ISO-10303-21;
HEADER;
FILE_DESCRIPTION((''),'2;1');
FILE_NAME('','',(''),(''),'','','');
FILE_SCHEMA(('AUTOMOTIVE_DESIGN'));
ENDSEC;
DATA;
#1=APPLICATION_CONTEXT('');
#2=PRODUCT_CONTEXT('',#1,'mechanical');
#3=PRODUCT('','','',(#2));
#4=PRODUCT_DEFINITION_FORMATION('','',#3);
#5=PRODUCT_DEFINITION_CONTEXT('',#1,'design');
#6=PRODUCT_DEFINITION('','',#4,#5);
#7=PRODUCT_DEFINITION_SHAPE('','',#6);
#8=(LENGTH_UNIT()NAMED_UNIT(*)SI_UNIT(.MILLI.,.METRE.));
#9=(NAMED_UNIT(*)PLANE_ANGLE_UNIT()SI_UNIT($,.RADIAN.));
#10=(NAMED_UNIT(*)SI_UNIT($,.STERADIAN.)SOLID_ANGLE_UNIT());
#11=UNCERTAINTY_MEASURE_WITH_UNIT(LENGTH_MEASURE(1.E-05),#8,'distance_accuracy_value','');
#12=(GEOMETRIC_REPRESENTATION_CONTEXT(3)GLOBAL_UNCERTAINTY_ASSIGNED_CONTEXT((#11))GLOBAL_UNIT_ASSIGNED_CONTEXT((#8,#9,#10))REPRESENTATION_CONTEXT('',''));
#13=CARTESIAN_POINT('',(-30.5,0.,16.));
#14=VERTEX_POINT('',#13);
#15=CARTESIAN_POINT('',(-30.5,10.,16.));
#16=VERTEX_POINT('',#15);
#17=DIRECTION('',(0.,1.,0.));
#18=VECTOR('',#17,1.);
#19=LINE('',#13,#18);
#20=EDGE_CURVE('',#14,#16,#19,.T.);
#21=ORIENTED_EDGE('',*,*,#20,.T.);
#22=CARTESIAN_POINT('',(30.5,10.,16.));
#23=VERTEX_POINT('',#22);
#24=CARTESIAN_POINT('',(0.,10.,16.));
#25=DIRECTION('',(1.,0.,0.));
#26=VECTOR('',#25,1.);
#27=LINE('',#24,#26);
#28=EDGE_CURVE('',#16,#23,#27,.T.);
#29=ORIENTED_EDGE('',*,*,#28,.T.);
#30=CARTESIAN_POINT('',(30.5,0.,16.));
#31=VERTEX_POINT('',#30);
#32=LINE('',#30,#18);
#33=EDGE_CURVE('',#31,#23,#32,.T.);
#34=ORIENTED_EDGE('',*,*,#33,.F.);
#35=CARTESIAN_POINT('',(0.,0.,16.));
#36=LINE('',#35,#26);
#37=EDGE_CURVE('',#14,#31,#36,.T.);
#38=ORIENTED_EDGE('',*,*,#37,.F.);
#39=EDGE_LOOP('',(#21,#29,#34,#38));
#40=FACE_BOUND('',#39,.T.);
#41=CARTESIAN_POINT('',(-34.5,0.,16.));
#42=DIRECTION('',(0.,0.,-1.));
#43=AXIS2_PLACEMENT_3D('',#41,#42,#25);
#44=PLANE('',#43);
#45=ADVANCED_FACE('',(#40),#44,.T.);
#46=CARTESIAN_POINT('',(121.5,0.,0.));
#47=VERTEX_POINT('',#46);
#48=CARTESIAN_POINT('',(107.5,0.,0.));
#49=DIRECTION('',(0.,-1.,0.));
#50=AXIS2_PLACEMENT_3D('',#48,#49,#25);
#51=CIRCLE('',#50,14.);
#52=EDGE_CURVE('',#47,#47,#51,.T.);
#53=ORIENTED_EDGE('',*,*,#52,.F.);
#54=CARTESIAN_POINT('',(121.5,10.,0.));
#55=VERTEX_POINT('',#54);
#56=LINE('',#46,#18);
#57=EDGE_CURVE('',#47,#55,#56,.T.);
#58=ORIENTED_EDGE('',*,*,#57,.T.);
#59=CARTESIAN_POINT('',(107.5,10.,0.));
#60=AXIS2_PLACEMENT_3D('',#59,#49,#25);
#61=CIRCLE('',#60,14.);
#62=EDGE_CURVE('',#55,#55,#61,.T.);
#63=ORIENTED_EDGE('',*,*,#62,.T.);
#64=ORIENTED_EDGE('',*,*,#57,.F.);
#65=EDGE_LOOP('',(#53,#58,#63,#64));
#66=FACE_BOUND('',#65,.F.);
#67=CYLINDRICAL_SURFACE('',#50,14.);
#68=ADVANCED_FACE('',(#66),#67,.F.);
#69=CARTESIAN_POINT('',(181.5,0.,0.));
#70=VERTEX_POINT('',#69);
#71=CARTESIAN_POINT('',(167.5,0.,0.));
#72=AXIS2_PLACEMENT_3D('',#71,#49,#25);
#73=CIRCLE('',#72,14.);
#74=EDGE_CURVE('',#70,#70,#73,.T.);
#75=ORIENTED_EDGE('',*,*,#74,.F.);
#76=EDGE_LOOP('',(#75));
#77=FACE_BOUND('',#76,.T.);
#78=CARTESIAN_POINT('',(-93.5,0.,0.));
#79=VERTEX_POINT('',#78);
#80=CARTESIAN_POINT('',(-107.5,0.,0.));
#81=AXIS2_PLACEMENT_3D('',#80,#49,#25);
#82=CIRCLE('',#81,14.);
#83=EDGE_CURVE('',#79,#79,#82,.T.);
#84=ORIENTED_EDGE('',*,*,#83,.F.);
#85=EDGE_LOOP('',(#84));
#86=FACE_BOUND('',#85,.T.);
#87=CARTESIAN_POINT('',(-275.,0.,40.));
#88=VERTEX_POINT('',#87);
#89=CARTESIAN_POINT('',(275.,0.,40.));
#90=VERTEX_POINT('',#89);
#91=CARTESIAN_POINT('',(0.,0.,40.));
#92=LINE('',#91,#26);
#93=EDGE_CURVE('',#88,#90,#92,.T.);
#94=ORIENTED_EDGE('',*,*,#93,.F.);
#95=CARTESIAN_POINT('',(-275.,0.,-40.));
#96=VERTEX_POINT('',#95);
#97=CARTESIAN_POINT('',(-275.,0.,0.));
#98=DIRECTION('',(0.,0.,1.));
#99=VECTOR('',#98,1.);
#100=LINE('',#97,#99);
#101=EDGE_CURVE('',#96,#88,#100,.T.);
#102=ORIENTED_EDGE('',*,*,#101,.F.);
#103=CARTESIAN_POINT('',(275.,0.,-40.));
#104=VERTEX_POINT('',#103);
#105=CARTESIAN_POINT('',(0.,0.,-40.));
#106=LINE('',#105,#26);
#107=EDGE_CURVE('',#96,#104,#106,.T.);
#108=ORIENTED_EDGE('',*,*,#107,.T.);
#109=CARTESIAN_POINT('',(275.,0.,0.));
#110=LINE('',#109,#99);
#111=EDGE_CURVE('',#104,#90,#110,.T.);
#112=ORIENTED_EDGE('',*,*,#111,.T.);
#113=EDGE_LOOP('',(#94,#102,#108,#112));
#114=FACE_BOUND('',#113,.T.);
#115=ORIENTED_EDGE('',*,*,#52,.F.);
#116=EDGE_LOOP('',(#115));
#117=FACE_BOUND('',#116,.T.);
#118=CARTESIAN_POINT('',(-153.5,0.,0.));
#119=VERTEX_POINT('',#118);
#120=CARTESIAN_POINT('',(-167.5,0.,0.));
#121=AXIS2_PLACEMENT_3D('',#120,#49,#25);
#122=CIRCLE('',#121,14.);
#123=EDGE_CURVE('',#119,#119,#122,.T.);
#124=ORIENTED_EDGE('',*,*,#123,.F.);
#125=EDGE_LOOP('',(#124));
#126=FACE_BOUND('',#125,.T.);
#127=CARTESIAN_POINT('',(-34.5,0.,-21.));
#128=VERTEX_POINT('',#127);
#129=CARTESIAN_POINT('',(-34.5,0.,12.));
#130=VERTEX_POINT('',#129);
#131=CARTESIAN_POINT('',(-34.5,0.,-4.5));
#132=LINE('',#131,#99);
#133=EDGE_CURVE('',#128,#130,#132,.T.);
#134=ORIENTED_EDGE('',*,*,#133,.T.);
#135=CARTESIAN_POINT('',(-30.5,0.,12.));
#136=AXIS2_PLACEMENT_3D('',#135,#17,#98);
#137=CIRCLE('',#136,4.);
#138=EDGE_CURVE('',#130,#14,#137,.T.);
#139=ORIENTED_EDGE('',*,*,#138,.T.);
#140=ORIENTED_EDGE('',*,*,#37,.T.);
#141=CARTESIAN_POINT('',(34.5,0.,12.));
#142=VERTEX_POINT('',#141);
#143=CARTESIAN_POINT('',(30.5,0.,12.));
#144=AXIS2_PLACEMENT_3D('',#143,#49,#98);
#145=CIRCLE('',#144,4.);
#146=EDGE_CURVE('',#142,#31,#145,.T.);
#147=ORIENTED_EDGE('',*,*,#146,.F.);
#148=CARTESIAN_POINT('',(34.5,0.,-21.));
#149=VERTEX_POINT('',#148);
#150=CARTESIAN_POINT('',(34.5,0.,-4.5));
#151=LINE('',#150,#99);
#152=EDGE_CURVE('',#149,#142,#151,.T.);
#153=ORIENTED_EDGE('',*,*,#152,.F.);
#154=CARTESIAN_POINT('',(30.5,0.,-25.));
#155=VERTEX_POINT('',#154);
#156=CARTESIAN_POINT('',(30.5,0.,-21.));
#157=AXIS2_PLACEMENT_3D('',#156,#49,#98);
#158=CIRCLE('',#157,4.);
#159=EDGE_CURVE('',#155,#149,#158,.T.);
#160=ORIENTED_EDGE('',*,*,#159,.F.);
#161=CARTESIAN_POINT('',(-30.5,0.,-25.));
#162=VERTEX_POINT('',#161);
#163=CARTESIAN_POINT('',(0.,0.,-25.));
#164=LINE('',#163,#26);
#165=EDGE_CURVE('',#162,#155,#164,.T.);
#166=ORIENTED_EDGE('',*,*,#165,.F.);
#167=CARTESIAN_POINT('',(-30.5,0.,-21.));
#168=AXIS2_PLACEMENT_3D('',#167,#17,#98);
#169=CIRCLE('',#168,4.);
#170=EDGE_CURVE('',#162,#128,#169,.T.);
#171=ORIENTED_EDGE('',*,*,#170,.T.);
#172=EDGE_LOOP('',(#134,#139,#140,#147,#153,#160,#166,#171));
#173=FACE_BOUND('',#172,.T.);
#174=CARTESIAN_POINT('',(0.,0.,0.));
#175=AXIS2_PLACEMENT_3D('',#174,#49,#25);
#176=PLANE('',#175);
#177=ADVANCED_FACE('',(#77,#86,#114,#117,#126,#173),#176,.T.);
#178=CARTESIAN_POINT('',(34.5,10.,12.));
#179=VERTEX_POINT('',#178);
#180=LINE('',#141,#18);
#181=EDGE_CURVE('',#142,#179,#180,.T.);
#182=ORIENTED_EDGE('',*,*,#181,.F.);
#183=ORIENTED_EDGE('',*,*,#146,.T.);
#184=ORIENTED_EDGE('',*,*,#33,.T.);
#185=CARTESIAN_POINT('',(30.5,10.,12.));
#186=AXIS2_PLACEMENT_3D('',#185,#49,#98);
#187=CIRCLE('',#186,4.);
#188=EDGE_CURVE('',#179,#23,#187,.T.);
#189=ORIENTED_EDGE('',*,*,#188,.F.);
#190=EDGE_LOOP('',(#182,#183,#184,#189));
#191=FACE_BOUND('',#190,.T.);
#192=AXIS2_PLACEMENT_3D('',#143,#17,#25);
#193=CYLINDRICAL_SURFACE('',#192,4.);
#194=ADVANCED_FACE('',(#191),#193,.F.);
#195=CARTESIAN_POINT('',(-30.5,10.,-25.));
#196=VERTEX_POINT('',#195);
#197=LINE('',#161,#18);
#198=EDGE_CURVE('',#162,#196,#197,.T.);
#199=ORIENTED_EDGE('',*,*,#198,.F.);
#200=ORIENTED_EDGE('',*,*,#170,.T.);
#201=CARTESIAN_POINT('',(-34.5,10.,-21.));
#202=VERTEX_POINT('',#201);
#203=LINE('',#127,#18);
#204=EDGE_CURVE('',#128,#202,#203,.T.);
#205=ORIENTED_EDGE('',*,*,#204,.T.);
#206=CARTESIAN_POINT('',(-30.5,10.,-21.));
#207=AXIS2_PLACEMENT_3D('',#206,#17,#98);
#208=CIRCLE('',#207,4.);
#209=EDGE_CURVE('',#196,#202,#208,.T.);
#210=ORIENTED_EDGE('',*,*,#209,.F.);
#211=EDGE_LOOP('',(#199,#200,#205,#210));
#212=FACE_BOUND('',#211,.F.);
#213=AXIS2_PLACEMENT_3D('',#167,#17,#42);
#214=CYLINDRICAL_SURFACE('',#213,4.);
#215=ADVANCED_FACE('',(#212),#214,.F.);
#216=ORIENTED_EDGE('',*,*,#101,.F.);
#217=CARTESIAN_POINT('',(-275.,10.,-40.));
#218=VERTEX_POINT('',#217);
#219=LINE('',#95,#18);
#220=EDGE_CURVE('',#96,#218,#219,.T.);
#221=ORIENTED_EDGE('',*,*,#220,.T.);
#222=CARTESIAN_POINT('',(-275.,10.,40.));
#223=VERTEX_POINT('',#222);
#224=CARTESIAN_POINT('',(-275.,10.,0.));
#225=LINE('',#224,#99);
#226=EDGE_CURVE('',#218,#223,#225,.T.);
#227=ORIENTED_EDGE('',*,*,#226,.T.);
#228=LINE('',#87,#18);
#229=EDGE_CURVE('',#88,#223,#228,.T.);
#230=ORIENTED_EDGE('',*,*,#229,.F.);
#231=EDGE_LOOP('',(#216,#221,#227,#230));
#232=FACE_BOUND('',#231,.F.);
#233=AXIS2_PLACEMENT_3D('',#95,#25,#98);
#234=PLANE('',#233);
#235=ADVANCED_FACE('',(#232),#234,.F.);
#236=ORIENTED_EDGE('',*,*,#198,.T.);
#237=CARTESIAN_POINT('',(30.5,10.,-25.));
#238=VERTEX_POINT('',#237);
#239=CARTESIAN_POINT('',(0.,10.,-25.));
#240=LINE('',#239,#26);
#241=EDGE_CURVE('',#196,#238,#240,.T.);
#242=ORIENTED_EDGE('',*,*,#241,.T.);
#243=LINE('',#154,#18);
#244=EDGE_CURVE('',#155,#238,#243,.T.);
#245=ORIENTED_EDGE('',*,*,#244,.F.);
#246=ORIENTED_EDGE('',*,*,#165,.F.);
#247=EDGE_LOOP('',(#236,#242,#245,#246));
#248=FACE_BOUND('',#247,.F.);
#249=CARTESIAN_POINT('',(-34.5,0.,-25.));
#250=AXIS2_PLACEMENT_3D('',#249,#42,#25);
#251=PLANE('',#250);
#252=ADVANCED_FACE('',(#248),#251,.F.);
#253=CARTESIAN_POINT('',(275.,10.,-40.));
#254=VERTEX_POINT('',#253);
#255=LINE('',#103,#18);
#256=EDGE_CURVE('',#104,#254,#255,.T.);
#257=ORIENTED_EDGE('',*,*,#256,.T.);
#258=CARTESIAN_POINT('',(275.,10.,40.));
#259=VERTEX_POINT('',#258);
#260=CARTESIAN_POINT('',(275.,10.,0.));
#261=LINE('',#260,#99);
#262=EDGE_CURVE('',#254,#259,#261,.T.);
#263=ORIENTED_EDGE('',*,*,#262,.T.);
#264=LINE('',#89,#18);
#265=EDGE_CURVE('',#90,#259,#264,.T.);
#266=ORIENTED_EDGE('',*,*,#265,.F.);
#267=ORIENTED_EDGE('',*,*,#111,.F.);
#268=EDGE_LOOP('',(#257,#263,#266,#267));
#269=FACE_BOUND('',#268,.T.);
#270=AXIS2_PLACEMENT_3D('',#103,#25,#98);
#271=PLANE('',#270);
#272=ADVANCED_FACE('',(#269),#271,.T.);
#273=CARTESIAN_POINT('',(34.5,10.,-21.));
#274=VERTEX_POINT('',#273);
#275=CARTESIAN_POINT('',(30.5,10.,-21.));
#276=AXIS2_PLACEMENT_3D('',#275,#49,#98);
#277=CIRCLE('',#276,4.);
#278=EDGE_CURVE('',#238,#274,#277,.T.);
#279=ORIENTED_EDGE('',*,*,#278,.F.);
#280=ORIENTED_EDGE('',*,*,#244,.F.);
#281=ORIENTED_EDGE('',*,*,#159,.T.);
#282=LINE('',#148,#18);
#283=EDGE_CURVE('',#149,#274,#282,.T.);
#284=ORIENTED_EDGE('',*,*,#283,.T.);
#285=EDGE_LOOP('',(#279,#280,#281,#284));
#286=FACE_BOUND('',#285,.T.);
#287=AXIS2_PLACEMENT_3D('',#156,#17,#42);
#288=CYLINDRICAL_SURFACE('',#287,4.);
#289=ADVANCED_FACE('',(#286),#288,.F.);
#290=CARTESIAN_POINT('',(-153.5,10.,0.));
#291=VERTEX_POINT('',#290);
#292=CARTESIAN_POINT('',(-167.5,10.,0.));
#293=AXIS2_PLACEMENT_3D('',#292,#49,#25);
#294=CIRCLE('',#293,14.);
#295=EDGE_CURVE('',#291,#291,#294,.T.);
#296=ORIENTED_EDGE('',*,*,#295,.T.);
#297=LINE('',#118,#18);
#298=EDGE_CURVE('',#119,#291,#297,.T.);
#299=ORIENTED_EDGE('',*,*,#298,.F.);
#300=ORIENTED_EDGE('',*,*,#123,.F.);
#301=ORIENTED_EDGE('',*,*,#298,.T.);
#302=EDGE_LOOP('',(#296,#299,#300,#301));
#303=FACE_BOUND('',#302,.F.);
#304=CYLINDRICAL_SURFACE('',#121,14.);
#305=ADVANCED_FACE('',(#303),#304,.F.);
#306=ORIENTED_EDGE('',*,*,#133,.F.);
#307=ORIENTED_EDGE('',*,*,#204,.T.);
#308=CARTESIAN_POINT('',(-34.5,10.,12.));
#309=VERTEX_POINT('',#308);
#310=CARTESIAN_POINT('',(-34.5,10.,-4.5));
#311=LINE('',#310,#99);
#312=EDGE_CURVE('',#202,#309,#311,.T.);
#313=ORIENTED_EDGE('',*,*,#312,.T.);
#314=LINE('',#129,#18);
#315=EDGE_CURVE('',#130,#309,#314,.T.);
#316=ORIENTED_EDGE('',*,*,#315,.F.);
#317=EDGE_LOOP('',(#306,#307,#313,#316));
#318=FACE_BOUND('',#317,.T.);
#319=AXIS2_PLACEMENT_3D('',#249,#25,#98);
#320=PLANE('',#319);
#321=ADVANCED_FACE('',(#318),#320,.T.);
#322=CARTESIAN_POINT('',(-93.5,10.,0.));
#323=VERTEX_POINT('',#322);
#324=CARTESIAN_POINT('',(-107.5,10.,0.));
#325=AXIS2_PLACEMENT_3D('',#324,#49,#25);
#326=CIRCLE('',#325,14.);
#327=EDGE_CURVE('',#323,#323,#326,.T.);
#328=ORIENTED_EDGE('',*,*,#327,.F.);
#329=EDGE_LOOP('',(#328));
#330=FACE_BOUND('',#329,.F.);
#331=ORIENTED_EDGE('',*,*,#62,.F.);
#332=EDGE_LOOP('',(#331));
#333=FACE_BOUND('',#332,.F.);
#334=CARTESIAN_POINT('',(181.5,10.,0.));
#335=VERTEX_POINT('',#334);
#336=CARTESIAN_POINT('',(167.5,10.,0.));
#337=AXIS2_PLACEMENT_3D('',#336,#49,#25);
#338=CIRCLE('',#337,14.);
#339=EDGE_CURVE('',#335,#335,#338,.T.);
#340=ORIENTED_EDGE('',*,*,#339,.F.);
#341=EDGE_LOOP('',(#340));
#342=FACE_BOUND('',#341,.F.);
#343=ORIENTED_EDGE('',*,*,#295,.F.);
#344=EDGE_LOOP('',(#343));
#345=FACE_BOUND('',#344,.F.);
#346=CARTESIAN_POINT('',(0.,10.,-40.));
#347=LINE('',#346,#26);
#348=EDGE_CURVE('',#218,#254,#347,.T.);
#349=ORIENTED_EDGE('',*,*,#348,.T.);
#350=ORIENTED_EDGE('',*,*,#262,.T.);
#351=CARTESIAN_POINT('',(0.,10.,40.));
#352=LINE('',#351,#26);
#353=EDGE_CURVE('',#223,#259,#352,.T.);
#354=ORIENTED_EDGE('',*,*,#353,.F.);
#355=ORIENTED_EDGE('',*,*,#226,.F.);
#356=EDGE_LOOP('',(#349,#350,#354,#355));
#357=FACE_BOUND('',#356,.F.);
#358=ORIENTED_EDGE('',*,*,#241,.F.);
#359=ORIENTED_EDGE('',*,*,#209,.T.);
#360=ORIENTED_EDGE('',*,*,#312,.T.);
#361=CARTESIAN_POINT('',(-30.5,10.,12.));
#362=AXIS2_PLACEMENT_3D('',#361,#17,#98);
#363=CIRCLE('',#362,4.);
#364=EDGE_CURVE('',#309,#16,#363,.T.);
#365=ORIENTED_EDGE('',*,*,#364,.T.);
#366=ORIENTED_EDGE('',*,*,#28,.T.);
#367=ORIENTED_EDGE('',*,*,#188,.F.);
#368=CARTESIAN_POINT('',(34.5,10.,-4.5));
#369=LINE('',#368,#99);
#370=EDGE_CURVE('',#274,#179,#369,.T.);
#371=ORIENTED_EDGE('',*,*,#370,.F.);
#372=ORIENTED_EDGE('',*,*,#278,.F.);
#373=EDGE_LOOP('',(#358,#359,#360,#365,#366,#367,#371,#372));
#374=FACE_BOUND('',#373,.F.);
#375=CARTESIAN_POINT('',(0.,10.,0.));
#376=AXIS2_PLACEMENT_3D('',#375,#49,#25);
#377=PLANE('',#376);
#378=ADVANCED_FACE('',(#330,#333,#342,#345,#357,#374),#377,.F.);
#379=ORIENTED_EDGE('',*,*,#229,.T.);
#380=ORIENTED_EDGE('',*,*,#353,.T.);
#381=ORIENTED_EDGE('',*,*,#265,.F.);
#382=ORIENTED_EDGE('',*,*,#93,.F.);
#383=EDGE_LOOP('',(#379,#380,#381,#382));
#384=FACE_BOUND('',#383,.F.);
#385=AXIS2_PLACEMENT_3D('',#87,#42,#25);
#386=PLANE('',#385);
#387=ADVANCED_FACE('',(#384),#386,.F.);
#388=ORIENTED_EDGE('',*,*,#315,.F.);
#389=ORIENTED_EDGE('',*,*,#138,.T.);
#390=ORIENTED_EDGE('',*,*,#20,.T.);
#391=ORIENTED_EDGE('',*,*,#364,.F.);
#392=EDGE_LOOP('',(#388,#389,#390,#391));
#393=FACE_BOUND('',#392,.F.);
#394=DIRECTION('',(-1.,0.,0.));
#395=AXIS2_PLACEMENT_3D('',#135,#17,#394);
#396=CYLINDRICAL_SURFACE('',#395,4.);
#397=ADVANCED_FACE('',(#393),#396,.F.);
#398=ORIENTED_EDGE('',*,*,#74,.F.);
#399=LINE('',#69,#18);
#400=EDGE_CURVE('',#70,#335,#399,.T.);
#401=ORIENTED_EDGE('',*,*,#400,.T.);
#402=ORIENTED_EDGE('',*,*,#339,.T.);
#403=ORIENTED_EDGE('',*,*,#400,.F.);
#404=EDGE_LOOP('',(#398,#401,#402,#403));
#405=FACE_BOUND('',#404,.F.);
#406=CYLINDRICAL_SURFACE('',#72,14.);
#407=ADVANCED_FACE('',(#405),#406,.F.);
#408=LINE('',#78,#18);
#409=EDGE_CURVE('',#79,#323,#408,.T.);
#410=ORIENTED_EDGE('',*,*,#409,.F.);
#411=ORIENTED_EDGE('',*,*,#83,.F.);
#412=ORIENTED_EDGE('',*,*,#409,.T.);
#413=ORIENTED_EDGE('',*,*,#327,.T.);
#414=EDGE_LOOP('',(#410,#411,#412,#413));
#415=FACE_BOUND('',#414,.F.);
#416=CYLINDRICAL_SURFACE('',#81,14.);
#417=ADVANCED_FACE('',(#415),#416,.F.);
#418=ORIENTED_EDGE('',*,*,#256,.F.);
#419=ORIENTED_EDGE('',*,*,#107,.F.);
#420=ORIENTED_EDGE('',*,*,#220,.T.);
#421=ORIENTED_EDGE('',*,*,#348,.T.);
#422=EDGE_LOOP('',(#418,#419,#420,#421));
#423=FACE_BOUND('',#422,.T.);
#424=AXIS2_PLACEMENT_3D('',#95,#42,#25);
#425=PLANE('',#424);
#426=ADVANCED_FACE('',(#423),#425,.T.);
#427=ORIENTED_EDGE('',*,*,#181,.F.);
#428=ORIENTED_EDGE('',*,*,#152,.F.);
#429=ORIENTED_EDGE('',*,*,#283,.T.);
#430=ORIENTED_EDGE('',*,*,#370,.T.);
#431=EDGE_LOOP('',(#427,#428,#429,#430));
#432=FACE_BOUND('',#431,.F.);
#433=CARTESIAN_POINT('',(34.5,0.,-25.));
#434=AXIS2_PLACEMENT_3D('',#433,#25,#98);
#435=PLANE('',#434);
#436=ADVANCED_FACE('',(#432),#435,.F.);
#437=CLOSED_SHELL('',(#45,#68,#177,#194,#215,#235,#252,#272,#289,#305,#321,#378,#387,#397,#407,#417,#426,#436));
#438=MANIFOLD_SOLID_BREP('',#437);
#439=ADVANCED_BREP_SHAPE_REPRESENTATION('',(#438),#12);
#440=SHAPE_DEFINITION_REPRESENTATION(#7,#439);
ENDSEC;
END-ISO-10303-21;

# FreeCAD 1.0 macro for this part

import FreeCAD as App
import Part
import Sketcher


def edges_at(feature, points):
    """Names of the edges that pass closest to the given points."""
    edges = feature.Shape.Edges
    near = lambda p: min(range(len(edges)), key=lambda i: edges[i].distToShape(Part.Vertex(*p))[0])
    return sorted({f"Edge{near(p) + 1}" for p in points})

doc = App.newDocument("Part")
body = doc.addObject("PartDesign::Body", "Body")

# Sketch on XZ plane
sketch1 = doc.addObject("Sketcher::SketchObject", "Sketch")
body.addObject(sketch1)
sketch1.AttachmentSupport = (doc.XZ_Plane, [""])
sketch1.MapMode = "FlatFace"
sketch1.addGeometry([
    Part.LineSegment(App.Vector(-275, 40, 0), App.Vector(-275, -40, 0)),  # 0
    Part.LineSegment(App.Vector(-275, -40, 0), App.Vector(275, -40, 0)),  # 1
    Part.LineSegment(App.Vector(275, -40, 0), App.Vector(275, 40, 0)),  # 2
    Part.LineSegment(App.Vector(275, 40, 0), App.Vector(-275, 40, 0)),  # 3
    Part.Circle(App.Vector(-168, 0, 0), App.Vector(0, 0, 1), 14),  # 4
    Part.Circle(App.Vector(-108, 0, 0), App.Vector(0, 0, 1), 14),  # 5
    Part.LineSegment(App.Vector(34, -25, 0), App.Vector(-34, -25, 0)),  # 6
    Part.LineSegment(App.Vector(-34, -25, 0), App.Vector(-34, 16, 0)),  # 7
    Part.LineSegment(App.Vector(-34, 16, 0), App.Vector(34, 16, 0)),  # 8
    Part.LineSegment(App.Vector(34, 16, 0), App.Vector(34, -25, 0)),  # 9
    Part.Circle(App.Vector(108, 0, 0), App.Vector(0, 0, 1), 14),  # 10
    Part.Circle(App.Vector(168, 0, 0), App.Vector(0, 0, 1), 14),  # 11
], False)
sketch1.addConstraint([
    Sketcher.Constraint("Coincident", 0, 2, 1, 1),
    Sketcher.Constraint("Coincident", 1, 2, 2, 1),
    Sketcher.Constraint("Coincident", 2, 2, 3, 1),
    Sketcher.Constraint("Coincident", 3, 2, 0, 1),
    Sketcher.Constraint("Coincident", 6, 2, 7, 1),
    Sketcher.Constraint("Coincident", 7, 2, 8, 1),
    Sketcher.Constraint("Coincident", 8, 2, 9, 1),
    Sketcher.Constraint("Coincident", 9, 2, 6, 1),
    Sketcher.Constraint("Vertical", 0),
    Sketcher.Constraint("Horizontal", 1),
    Sketcher.Constraint("Vertical", 2),
    Sketcher.Constraint("Horizontal", 3),
    Sketcher.Constraint("Horizontal", 6),
    Sketcher.Constraint("Vertical", 7),
    Sketcher.Constraint("Horizontal", 8),
    Sketcher.Constraint("Vertical", 9),
    Sketcher.Constraint("Equal", 4, 5),
    Sketcher.Constraint("Equal", 5, 10),
    Sketcher.Constraint("Equal", 10, 11),
    Sketcher.Constraint("Symmetric", 5, 3, 10, 3, -1, 1),
    Sketcher.Constraint("Symmetric", 4, 3, 11, 3, -1, 1),
    Sketcher.Constraint("Symmetric", 0, 2, 2, 2, -1, 1),
    Sketcher.Constraint("PointOnObject", 4, 3, -1),
    Sketcher.Constraint("PointOnObject", 5, 3, -1),
    Sketcher.Constraint("Diameter", 4, 28.0),
    Sketcher.Constraint("DistanceX", 1, 1, 1, 2, 550.0),
    Sketcher.Constraint("DistanceX", 6, 2, 6, 1, 69.0),
    Sketcher.Constraint("DistanceY", 0, 2, 0, 1, 80.0),
    Sketcher.Constraint("DistanceY", 7, 1, 7, 2, 41.0),
    Sketcher.Constraint("DistanceY", 6, 2, -1, 1, 25.0),
    Sketcher.Constraint("DistanceX", 4, 3, 5, 3, 60.0),
    Sketcher.Constraint("DistanceX", 5, 3, 10, 3, 215.0),
    Sketcher.Constraint("DistanceX", 5, 3, 6, 2, 73.0),
])
pad1 = doc.addObject("PartDesign::Pad", "Pad")
body.addObject(pad1)
pad1.Profile = sketch1
pad1.Length = 10
pad1.Reversed = True
doc.recompute()

fillet = doc.addObject("PartDesign::Fillet", "Fillet")
body.addObject(fillet)
fillet.Base = (pad1, edges_at(pad1, [
    (-34.5, 5, 16),
    (34.5, 5, 16),
    (34.5, 5, -25),
    (-34.5, 5, -25),
]))
fillet.Radius = 4

doc.recompute()
